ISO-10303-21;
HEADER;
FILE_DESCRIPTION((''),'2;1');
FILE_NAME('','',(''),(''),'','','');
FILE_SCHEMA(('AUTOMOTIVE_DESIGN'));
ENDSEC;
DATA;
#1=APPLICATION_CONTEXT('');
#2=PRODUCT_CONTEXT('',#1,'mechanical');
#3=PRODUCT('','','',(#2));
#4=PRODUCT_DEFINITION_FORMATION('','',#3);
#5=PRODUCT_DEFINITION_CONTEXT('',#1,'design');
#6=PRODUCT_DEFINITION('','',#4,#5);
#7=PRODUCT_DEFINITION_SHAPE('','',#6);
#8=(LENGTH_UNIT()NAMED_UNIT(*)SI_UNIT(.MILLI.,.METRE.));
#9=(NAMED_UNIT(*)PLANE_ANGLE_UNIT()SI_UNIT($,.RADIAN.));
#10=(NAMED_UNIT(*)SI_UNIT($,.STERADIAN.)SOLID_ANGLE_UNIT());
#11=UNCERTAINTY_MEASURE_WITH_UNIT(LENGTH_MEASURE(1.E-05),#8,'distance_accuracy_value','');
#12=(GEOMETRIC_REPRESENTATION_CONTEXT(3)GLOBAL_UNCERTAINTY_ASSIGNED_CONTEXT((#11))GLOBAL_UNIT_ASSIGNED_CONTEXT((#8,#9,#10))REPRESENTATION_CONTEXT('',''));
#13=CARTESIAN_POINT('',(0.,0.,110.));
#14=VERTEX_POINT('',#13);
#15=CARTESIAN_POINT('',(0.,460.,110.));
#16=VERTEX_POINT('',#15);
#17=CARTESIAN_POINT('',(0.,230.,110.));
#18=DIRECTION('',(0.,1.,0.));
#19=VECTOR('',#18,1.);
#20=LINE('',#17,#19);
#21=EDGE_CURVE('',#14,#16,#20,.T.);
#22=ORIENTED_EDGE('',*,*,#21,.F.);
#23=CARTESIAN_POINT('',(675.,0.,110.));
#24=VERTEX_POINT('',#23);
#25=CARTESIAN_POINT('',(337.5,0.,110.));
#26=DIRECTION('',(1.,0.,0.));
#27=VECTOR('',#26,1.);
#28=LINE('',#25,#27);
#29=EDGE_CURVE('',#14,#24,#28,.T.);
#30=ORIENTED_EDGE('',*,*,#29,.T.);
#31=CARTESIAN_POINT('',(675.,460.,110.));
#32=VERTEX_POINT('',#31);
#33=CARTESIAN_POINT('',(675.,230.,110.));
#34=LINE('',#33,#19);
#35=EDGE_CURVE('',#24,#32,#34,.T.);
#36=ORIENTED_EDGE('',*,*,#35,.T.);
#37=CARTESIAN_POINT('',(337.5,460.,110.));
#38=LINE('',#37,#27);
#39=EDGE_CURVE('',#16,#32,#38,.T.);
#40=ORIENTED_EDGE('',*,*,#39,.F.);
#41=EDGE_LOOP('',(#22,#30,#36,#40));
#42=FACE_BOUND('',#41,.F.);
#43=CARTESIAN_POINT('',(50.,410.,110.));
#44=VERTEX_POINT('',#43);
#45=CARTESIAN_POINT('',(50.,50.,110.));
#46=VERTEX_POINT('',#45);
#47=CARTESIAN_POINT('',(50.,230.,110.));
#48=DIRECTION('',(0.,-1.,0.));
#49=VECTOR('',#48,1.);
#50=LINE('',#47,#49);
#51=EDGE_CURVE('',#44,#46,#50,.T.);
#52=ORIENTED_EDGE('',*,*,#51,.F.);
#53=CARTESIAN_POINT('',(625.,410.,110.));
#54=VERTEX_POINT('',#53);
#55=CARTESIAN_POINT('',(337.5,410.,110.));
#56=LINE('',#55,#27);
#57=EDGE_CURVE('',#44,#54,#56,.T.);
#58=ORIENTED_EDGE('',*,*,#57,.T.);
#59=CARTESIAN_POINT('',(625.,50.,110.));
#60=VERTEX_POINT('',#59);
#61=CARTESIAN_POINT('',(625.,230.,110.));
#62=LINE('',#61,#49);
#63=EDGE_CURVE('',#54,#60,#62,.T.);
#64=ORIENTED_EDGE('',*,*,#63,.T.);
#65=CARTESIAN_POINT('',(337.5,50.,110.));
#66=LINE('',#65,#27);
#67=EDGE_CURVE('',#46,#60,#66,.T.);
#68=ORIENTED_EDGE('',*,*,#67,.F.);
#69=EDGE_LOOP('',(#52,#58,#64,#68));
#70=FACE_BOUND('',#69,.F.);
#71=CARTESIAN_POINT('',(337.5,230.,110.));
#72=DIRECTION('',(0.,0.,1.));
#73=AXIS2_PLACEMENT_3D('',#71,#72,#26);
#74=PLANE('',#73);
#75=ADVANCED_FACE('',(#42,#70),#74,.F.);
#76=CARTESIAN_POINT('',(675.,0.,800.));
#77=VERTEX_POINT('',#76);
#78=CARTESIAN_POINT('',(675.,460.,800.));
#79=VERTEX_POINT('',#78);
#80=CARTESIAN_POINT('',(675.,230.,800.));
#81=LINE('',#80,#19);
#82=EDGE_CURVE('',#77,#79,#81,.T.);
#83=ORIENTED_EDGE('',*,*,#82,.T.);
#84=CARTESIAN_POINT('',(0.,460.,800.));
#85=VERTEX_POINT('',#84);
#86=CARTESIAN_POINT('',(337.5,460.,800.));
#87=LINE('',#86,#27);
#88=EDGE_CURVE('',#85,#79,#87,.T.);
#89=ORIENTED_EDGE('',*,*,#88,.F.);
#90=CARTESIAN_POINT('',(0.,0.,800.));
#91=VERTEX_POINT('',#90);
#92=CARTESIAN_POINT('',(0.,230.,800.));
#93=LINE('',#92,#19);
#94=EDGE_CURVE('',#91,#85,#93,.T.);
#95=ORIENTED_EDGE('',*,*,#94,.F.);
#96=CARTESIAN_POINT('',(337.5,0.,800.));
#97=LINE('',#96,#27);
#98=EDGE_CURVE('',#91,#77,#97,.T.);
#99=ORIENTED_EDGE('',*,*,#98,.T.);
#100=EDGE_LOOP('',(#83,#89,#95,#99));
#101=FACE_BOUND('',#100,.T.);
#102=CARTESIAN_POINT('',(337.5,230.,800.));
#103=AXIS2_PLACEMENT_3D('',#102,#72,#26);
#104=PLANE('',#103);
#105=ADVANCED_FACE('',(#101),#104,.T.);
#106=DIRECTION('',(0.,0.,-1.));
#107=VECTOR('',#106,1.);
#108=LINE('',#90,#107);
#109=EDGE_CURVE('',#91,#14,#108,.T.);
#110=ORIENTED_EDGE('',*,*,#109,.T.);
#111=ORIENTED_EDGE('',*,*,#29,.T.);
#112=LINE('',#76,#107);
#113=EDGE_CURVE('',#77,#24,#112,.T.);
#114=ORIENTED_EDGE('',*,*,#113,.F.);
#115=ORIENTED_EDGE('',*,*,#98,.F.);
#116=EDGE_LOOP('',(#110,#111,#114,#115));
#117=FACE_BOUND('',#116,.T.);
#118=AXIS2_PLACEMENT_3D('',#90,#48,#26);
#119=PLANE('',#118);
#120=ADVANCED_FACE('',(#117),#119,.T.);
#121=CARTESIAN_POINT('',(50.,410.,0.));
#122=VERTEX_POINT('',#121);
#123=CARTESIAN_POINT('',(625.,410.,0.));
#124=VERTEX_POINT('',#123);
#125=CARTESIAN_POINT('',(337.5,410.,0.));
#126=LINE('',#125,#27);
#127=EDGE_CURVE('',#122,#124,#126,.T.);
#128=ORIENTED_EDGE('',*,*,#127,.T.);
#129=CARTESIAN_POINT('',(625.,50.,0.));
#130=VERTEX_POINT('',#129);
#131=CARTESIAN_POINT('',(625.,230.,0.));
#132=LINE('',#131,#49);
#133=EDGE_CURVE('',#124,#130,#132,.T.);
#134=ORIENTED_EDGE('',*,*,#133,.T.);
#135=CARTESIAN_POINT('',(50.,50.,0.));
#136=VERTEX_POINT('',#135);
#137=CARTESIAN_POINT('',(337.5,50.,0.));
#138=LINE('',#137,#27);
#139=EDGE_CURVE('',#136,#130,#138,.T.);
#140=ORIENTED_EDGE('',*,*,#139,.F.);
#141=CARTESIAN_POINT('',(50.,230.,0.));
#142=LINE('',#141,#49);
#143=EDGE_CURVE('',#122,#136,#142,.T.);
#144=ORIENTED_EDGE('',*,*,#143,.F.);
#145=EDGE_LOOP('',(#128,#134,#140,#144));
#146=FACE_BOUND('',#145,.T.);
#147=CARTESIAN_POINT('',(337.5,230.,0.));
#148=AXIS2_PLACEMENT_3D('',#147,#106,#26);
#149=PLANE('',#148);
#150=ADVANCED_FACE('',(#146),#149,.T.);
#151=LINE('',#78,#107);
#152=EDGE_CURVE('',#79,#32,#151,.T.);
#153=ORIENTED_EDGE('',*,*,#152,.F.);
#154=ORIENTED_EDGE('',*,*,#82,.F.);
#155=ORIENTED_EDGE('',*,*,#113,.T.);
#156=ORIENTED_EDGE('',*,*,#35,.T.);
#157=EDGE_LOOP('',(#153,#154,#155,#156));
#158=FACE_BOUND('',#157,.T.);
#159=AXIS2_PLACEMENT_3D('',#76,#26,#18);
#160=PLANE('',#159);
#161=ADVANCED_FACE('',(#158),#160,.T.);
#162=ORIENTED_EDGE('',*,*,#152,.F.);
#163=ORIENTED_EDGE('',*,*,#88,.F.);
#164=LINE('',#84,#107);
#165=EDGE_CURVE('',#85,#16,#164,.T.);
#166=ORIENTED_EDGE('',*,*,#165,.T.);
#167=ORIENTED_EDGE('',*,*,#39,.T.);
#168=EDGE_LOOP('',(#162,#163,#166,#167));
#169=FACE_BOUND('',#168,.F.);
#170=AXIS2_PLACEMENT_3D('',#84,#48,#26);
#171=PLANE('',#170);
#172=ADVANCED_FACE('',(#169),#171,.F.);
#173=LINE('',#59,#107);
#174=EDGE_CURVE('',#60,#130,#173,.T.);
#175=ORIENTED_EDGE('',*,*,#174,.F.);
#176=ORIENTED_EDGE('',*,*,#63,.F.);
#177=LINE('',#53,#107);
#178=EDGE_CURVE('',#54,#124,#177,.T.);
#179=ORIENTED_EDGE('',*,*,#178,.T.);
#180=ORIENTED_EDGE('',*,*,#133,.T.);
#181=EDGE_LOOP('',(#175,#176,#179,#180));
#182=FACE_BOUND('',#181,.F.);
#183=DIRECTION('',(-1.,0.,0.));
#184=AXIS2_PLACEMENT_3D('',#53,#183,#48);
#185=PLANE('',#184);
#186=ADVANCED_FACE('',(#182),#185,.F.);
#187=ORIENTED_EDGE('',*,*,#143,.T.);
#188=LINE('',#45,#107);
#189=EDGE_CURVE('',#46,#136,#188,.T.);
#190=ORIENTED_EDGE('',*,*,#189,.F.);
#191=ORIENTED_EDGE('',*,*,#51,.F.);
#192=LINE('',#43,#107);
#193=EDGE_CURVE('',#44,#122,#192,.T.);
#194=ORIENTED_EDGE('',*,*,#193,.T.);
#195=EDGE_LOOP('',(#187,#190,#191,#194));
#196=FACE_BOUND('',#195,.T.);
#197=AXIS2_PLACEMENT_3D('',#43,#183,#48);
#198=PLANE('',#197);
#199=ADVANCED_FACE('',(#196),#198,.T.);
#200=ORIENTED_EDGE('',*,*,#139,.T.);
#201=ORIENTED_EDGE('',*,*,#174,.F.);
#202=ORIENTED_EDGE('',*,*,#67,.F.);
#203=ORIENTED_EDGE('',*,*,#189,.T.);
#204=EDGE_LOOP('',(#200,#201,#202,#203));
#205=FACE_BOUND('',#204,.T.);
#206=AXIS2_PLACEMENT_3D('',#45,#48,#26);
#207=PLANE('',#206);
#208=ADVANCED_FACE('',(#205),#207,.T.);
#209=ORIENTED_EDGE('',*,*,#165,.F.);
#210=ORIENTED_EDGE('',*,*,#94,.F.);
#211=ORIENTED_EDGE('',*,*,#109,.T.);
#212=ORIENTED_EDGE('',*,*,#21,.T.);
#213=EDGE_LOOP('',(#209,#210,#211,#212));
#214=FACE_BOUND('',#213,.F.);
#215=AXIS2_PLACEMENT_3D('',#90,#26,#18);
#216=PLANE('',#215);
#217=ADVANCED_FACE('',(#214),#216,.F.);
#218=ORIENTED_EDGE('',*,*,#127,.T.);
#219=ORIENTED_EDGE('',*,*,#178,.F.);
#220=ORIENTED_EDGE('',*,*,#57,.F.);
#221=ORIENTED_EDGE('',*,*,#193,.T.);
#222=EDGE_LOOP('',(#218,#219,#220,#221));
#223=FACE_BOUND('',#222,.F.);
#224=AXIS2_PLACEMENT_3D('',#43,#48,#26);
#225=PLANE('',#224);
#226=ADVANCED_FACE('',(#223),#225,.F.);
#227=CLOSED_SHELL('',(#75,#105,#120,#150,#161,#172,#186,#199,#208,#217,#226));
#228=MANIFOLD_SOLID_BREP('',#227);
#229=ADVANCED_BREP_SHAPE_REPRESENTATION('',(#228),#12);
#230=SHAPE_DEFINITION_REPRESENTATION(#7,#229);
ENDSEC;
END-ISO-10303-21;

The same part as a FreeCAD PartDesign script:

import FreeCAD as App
import Part
import Sketcher

V = App.Vector


def add_polygon(sketch, points):
    """Adds a closed chain of lines whose ends are joined by coincident constraints."""
    first, n = sketch.GeometryCount, len(points)
    for a, b in zip(points, points[1:] + points[:1]):
        sketch.addGeometry(Part.LineSegment(App.Vector(*a, 0), App.Vector(*b, 0)), False)
    for i in range(n):
        sketch.addConstraint(Sketcher.Constraint("Coincident", first + i, 2, first + (i + 1) % n, 1))

doc = App.newDocument("Part")
body = doc.addObject("PartDesign::Body", "Body")

sketch1 = doc.addObject("Sketcher::SketchObject", "Sketch")
body.addObject(sketch1)
sketch1.AttachmentSupport = (doc.XY_Plane, [""])
sketch1.MapMode = "FlatFace"
sketch1.AttachmentOffset = App.Placement(V(0, 0, 800), App.Rotation())
add_polygon(sketch1, [(0, 460), (0, 0), (675, 0), (675, 460)])
sketch1.addConstraint(Sketcher.Constraint("Vertical", 0))
sketch1.addConstraint(Sketcher.Constraint("Horizontal", 1))
sketch1.addConstraint(Sketcher.Constraint("Vertical", 2))
sketch1.addConstraint(Sketcher.Constraint("Horizontal", 3))
sketch1.addConstraint(Sketcher.Constraint("Coincident", 0, 2, -1, 1))
sketch1.addConstraint(Sketcher.Constraint("DistanceX", 1, 1, 1, 2, 675.0))
sketch1.addConstraint(Sketcher.Constraint("DistanceY", 0, 2, 0, 1, 460.0))
pad1 = doc.addObject("PartDesign::Pad", "Pad")
body.addObject(pad1)
pad1.Profile = sketch1
pad1.Length = 690
pad1.Reversed = True

sketch2 = doc.addObject("Sketcher::SketchObject", "Sketch001")
body.addObject(sketch2)
sketch2.AttachmentSupport = (doc.XY_Plane, [""])
sketch2.MapMode = "FlatFace"
sketch2.AttachmentOffset = App.Placement(V(0, 0, 110), App.Rotation())
add_polygon(sketch2, [(50, 50), (50, 410), (625, 410), (625, 50)])
sketch2.addConstraint(Sketcher.Constraint("Vertical", 0))
sketch2.addConstraint(Sketcher.Constraint("Horizontal", 1))
sketch2.addConstraint(Sketcher.Constraint("Vertical", 2))
sketch2.addConstraint(Sketcher.Constraint("Horizontal", 3))
sketch2.addConstraint(Sketcher.Constraint("DistanceX", 1, 1, 1, 2, 575.0))
sketch2.addConstraint(Sketcher.Constraint("DistanceY", 0, 1, 0, 2, 360.0))
sketch2.addConstraint(Sketcher.Constraint("DistanceX", -1, 1, 0, 2, 50.0))
sketch2.addConstraint(Sketcher.Constraint("DistanceY", -1, 1, 0, 2, 410.0))
pad2 = doc.addObject("PartDesign::Pad", "Pad001")
body.addObject(pad2)
pad2.Profile = sketch2
pad2.Length = 110
pad2.Reversed = True

doc.recompute()
